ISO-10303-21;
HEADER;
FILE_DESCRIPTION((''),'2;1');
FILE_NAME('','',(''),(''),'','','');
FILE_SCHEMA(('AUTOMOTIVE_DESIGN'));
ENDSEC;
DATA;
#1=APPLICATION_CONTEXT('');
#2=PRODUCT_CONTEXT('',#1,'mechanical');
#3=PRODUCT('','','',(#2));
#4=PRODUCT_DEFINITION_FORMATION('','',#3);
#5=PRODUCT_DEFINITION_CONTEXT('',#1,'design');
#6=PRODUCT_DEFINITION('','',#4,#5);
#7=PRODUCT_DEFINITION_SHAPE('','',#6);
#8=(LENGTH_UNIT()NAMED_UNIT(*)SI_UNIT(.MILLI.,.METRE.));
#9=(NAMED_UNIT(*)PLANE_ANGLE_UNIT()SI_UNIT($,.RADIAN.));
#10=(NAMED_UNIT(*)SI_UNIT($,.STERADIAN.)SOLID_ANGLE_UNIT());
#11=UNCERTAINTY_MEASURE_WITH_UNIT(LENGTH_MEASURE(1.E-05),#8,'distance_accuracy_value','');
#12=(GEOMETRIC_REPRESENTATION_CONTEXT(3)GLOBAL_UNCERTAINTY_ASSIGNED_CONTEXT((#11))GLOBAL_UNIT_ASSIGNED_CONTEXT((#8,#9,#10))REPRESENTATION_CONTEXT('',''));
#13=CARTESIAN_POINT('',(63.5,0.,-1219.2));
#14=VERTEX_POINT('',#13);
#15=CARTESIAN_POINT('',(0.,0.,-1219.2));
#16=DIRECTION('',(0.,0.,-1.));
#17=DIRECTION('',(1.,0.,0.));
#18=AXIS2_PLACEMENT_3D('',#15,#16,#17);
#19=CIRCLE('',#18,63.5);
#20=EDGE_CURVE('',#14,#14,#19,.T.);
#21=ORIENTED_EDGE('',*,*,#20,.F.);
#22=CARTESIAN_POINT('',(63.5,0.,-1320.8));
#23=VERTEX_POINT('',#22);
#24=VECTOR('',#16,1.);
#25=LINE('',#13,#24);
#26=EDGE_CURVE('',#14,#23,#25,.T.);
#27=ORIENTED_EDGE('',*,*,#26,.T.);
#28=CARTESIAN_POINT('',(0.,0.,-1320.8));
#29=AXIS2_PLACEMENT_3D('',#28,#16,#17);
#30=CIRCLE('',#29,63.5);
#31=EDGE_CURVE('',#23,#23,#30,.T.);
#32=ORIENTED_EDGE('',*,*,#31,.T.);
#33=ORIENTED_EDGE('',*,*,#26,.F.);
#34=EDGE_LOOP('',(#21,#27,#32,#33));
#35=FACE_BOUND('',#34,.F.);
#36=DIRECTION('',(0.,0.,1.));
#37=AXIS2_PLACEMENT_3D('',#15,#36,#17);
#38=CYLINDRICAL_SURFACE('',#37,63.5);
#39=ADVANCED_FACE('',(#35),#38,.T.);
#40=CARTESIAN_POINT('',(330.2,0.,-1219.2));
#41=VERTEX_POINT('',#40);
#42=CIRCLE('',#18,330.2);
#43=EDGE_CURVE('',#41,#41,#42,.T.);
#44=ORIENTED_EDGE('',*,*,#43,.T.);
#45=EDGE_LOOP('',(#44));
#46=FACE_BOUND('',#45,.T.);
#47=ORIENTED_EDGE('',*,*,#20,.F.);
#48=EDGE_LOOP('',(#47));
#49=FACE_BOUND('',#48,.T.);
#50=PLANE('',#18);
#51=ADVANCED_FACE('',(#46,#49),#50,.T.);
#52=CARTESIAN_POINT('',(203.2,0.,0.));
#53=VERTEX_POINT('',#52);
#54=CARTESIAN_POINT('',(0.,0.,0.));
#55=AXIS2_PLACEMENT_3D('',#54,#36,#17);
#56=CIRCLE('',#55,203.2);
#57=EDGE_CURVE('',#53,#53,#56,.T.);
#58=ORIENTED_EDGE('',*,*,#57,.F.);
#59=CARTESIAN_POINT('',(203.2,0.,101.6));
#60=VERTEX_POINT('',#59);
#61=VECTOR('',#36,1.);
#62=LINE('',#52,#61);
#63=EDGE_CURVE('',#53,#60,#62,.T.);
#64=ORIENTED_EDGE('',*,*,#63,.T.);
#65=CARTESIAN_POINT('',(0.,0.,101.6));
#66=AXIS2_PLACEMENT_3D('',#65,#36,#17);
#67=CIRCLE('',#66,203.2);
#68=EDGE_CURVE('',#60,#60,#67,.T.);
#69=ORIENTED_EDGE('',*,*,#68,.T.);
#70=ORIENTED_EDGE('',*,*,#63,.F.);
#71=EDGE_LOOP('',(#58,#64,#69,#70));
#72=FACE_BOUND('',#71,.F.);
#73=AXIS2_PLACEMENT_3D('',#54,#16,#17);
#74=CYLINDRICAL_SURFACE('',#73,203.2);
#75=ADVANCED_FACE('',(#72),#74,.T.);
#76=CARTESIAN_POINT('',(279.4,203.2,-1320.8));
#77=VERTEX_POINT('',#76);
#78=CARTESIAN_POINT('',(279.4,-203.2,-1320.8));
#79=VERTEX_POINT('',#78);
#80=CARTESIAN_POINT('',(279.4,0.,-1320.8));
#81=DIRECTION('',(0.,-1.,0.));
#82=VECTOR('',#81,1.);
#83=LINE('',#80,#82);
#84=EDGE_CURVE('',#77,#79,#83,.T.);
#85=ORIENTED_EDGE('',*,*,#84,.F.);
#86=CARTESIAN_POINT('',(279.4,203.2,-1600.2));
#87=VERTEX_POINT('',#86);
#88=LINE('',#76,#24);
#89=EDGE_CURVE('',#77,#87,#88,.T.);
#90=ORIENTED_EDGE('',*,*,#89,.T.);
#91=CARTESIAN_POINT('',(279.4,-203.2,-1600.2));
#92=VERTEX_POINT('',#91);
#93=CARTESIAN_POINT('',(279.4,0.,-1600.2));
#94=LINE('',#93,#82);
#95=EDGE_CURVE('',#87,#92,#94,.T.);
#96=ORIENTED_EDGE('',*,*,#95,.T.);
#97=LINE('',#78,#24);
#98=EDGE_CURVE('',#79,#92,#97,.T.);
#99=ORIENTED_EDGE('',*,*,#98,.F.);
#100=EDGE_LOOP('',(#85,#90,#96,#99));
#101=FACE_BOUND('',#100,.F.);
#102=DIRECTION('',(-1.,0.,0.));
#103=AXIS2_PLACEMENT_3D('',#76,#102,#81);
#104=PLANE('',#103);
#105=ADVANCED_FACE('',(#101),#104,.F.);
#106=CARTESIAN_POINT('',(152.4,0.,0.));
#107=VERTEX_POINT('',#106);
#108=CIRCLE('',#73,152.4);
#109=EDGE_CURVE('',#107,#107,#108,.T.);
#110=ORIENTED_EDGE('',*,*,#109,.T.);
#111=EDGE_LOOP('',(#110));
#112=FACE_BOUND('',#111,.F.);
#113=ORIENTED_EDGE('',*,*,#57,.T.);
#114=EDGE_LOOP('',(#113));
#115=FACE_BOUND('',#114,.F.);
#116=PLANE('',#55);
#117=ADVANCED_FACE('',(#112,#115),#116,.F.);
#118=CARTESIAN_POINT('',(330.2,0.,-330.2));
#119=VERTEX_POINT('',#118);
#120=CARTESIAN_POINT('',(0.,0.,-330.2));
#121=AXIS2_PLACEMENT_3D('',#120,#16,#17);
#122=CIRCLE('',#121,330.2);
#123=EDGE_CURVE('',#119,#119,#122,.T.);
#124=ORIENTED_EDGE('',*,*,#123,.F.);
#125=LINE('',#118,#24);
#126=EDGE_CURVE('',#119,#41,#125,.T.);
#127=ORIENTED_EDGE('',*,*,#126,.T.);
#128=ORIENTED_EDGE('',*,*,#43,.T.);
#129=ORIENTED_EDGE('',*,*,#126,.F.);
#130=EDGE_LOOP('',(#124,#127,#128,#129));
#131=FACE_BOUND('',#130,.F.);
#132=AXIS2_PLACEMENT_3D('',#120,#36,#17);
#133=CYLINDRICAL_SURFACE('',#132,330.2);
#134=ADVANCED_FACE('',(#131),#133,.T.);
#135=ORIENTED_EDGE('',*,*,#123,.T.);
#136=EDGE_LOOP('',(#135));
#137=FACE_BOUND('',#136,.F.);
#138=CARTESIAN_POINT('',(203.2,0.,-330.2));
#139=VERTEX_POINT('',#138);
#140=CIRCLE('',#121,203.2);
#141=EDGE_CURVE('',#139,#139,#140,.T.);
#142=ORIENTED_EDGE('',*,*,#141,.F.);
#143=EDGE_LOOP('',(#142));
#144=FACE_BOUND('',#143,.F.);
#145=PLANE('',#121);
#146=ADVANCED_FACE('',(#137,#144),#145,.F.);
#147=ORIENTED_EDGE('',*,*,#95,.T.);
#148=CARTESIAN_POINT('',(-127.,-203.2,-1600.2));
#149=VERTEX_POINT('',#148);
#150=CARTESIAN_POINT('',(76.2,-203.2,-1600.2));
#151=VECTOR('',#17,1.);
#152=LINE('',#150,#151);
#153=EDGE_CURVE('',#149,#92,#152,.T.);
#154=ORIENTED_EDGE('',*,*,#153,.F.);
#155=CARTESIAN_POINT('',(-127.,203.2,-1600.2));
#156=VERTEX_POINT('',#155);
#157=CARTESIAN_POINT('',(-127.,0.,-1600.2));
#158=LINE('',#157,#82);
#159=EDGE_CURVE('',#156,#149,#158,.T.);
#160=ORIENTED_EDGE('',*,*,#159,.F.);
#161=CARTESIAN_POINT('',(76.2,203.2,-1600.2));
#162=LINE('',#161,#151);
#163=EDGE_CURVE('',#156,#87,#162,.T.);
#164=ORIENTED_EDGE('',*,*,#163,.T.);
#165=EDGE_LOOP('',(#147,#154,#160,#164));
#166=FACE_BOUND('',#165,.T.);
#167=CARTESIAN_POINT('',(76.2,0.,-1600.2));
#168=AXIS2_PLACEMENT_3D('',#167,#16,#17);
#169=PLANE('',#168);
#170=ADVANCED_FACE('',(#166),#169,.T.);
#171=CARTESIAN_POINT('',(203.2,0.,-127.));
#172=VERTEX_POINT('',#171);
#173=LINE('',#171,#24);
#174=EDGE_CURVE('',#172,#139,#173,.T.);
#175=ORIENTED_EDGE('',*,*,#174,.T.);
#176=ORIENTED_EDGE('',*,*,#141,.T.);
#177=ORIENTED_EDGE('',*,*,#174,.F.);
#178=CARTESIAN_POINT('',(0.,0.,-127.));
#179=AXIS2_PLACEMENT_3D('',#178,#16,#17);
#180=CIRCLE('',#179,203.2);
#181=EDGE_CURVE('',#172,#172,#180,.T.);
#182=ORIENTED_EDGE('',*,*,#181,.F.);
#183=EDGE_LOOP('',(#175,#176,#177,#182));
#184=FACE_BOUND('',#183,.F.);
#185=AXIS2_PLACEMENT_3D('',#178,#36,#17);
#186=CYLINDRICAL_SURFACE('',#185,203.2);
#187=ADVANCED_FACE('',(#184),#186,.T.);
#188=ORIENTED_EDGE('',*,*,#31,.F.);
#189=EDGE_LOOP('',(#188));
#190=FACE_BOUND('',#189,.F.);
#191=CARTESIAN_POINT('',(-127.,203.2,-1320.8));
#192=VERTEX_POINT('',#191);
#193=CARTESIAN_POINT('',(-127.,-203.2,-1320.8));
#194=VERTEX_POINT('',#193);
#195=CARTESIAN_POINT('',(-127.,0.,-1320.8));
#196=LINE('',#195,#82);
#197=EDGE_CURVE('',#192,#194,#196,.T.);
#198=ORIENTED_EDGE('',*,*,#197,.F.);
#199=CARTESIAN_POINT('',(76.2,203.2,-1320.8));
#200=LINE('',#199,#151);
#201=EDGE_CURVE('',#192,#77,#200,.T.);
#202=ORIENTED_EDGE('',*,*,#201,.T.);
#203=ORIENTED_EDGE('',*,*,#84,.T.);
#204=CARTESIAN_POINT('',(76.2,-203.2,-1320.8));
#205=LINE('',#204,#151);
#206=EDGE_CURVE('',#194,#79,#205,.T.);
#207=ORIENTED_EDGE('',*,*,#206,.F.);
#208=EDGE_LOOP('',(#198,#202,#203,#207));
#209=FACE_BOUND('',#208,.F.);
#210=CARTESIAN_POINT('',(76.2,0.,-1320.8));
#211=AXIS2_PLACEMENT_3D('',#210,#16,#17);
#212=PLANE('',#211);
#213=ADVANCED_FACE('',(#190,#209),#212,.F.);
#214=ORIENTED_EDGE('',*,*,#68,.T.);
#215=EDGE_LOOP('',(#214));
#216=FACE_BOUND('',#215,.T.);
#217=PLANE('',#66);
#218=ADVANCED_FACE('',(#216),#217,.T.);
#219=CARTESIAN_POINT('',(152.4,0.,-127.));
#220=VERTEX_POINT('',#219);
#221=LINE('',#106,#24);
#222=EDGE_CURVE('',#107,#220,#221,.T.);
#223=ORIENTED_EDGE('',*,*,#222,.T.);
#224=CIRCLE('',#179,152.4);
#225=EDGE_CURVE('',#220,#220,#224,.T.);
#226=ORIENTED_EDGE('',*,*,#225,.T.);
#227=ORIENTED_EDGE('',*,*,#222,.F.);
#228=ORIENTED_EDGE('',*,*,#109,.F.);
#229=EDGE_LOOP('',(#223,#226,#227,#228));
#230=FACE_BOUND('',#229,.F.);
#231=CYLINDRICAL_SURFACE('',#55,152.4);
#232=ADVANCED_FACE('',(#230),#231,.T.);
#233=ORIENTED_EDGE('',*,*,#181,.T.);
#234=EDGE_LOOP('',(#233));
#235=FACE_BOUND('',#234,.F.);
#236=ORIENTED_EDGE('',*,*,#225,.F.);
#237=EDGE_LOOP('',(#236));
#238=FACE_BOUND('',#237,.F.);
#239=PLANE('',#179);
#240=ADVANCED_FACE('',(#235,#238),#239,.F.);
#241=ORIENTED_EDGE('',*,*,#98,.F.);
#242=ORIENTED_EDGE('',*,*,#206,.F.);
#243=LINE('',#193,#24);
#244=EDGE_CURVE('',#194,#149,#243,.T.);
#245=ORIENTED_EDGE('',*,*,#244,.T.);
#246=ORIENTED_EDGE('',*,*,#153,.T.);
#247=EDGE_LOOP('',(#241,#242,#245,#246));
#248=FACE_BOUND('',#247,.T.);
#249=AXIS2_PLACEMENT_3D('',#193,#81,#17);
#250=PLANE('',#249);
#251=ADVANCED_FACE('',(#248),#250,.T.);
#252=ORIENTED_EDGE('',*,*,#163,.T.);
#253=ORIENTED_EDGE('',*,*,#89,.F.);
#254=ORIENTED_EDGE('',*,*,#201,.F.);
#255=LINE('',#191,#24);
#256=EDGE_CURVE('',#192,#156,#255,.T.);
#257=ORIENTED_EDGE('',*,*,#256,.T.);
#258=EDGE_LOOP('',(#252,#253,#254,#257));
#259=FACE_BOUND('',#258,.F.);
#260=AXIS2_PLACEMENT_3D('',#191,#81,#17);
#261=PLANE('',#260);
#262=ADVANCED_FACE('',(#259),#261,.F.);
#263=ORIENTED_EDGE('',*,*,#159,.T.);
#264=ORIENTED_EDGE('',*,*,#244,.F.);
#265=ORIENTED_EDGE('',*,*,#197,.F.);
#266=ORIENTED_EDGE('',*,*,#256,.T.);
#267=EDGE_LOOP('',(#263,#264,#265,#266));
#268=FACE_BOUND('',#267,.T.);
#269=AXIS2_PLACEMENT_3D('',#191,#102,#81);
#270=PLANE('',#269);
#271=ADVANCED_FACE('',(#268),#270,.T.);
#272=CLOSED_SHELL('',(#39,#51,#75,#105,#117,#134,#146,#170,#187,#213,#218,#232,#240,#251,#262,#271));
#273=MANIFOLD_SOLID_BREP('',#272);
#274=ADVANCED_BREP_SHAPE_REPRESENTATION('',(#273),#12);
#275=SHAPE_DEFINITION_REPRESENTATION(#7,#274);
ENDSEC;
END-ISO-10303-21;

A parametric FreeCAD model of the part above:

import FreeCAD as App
import Part
import Sketcher
from FreeCAD import Vector
Q = App.Units.Quantity

doc = App.newDocument("Part")
body = doc.addObject("PartDesign::Body", "Body")

# Sketch on XY plane
sketch1 = doc.addObject("Sketcher::SketchObject", "Sketch")
body.addObject(sketch1)
sketch1.AttachmentSupport = (doc.XY_Plane, [""])
sketch1.MapMode = "FlatFace"
sketch1.addGeometry(Part.Circle(Vector(0, 0, 0), Vector(0, 0, 1), 203.2), False)
sketch1.addConstraint([
    Sketcher.Constraint("Coincident", 0, 3, -1, 1),
    Sketcher.Constraint("Diameter", 0, Q("16 in")),
])
pad1 = doc.addObject("PartDesign::Pad", "Pad")
body.addObject(pad1)
pad1.Profile = sketch1
pad1.Length = Q("4 in")

# Sketch on XY plane
sketch2 = doc.addObject("Sketcher::SketchObject", "Sketch001")
body.addObject(sketch2)
sketch2.AttachmentSupport = (doc.XY_Plane, [""])
sketch2.MapMode = "FlatFace"
sketch2.addGeometry(Part.Circle(Vector(0, 0, 0), Vector(0, 0, 1), 152.4), False)
sketch2.addConstraint([
    Sketcher.Constraint("Coincident", 0, 3, -1, 1),
    Sketcher.Constraint("Diameter", 0, Q("12 in")),
])
pad2 = doc.addObject("PartDesign::Pad", "Pad001")
body.addObject(pad2)
pad2.Profile = sketch2
pad2.Length = Q("5 in")
pad2.Reversed = True

# Sketch on XY plane
sketch3 = doc.addObject("Sketcher::SketchObject", "Sketch002")
body.addObject(sketch3)
sketch3.AttachmentSupport = (doc.XY_Plane, [""])
sketch3.MapMode = "FlatFace"
sketch3.AttachmentOffset = App.Placement(Vector(0, 0, -5 * 25.4), App.Rotation())
sketch3.addGeometry(Part.Circle(Vector(0, 0, 0), Vector(0, 0, 1), 203.2), False)
sketch3.addConstraint([
    Sketcher.Constraint("Coincident", 0, 3, -1, 1),
    Sketcher.Constraint("Diameter", 0, Q("16 in")),
])
pad3 = doc.addObject("PartDesign::Pad", "Pad002")
body.addObject(pad3)
pad3.Profile = sketch3
pad3.Length = Q("8 in")
pad3.Reversed = True

# Sketch on XY plane
sketch4 = doc.addObject("Sketcher::SketchObject", "Sketch003")
body.addObject(sketch4)
sketch4.AttachmentSupport = (doc.XY_Plane, [""])
sketch4.MapMode = "FlatFace"
sketch4.AttachmentOffset = App.Placement(Vector(0, 0, -13 * 25.4), App.Rotation())
sketch4.addGeometry(Part.Circle(Vector(0, 0, 0), Vector(0, 0, 1), 330.2), False)
sketch4.addConstraint([
    Sketcher.Constraint("Coincident", 0, 3, -1, 1),
    Sketcher.Constraint("Diameter", 0, Q("26 in")),
])
pad4 = doc.addObject("PartDesign::Pad", "Pad003")
body.addObject(pad4)
pad4.Profile = sketch4
pad4.Length = Q("35 in")
pad4.Reversed = True

# Sketch on XY plane
sketch5 = doc.addObject("Sketcher::SketchObject", "Sketch004")
body.addObject(sketch5)
sketch5.AttachmentSupport = (doc.XY_Plane, [""])
sketch5.MapMode = "FlatFace"
sketch5.AttachmentOffset = App.Placement(Vector(0, 0, -48 * 25.4), App.Rotation())
sketch5.addGeometry(Part.Circle(Vector(0, 0, 0), Vector(0, 0, 1), 63.5), False)
sketch5.addConstraint([
    Sketcher.Constraint("Coincident", 0, 3, -1, 1),
    Sketcher.Constraint("Diameter", 0, Q("5 in")),
])
pad5 = doc.addObject("PartDesign::Pad", "Pad004")
body.addObject(pad5)
pad5.Profile = sketch5
pad5.Length = Q("4 in")
pad5.Reversed = True

# Sketch on XY plane
sketch6 = doc.addObject("Sketcher::SketchObject", "Sketch005")
body.addObject(sketch6)
sketch6.AttachmentSupport = (doc.XY_Plane, [""])
sketch6.MapMode = "FlatFace"
sketch6.AttachmentOffset = App.Placement(Vector(0, 0, -52 * 25.4), App.Rotation())
sketch6.addGeometry([
    Part.LineSegment(Vector(-127, -203.2, 0), Vector(-127, 203.2, 0)),
    Part.LineSegment(Vector(-127, 203.2, 0), Vector(279.4, 203.2, 0)),
    Part.LineSegment(Vector(279.4, 203.2, 0), Vector(279.4, -203.2, 0)),
    Part.LineSegment(Vector(279.4, -203.2, 0), Vector(-127, -203.2, 0)),
], False)
sketch6.addConstraint([
    Sketcher.Constraint("Coincident", 0, 2, 1, 1),
    Sketcher.Constraint("Coincident", 1, 2, 2, 1),
    Sketcher.Constraint("Coincident", 2, 2, 3, 1),
    Sketcher.Constraint("Coincident", 3, 2, 0, 1),
    Sketcher.Constraint("Vertical", 0),
    Sketcher.Constraint("Horizontal", 1),
    Sketcher.Constraint("Vertical", 2),
    Sketcher.Constraint("Horizontal", 3),
    Sketcher.Constraint("Equal", 3, 0),
    Sketcher.Constraint("DistanceX", 1, 1, 1, 2, Q("16 in")),
    Sketcher.Constraint("DistanceX", 0, 2, -1, 1, Q("5 in")),
    Sketcher.Constraint("DistanceY", -1, 1, 0, 2, Q("8 in")),
])
pad6 = doc.addObject("PartDesign::Pad", "Pad005")
body.addObject(pad6)
pad6.Profile = sketch6
pad6.Length = Q("11 in")
pad6.Reversed = True

doc.recompute()
